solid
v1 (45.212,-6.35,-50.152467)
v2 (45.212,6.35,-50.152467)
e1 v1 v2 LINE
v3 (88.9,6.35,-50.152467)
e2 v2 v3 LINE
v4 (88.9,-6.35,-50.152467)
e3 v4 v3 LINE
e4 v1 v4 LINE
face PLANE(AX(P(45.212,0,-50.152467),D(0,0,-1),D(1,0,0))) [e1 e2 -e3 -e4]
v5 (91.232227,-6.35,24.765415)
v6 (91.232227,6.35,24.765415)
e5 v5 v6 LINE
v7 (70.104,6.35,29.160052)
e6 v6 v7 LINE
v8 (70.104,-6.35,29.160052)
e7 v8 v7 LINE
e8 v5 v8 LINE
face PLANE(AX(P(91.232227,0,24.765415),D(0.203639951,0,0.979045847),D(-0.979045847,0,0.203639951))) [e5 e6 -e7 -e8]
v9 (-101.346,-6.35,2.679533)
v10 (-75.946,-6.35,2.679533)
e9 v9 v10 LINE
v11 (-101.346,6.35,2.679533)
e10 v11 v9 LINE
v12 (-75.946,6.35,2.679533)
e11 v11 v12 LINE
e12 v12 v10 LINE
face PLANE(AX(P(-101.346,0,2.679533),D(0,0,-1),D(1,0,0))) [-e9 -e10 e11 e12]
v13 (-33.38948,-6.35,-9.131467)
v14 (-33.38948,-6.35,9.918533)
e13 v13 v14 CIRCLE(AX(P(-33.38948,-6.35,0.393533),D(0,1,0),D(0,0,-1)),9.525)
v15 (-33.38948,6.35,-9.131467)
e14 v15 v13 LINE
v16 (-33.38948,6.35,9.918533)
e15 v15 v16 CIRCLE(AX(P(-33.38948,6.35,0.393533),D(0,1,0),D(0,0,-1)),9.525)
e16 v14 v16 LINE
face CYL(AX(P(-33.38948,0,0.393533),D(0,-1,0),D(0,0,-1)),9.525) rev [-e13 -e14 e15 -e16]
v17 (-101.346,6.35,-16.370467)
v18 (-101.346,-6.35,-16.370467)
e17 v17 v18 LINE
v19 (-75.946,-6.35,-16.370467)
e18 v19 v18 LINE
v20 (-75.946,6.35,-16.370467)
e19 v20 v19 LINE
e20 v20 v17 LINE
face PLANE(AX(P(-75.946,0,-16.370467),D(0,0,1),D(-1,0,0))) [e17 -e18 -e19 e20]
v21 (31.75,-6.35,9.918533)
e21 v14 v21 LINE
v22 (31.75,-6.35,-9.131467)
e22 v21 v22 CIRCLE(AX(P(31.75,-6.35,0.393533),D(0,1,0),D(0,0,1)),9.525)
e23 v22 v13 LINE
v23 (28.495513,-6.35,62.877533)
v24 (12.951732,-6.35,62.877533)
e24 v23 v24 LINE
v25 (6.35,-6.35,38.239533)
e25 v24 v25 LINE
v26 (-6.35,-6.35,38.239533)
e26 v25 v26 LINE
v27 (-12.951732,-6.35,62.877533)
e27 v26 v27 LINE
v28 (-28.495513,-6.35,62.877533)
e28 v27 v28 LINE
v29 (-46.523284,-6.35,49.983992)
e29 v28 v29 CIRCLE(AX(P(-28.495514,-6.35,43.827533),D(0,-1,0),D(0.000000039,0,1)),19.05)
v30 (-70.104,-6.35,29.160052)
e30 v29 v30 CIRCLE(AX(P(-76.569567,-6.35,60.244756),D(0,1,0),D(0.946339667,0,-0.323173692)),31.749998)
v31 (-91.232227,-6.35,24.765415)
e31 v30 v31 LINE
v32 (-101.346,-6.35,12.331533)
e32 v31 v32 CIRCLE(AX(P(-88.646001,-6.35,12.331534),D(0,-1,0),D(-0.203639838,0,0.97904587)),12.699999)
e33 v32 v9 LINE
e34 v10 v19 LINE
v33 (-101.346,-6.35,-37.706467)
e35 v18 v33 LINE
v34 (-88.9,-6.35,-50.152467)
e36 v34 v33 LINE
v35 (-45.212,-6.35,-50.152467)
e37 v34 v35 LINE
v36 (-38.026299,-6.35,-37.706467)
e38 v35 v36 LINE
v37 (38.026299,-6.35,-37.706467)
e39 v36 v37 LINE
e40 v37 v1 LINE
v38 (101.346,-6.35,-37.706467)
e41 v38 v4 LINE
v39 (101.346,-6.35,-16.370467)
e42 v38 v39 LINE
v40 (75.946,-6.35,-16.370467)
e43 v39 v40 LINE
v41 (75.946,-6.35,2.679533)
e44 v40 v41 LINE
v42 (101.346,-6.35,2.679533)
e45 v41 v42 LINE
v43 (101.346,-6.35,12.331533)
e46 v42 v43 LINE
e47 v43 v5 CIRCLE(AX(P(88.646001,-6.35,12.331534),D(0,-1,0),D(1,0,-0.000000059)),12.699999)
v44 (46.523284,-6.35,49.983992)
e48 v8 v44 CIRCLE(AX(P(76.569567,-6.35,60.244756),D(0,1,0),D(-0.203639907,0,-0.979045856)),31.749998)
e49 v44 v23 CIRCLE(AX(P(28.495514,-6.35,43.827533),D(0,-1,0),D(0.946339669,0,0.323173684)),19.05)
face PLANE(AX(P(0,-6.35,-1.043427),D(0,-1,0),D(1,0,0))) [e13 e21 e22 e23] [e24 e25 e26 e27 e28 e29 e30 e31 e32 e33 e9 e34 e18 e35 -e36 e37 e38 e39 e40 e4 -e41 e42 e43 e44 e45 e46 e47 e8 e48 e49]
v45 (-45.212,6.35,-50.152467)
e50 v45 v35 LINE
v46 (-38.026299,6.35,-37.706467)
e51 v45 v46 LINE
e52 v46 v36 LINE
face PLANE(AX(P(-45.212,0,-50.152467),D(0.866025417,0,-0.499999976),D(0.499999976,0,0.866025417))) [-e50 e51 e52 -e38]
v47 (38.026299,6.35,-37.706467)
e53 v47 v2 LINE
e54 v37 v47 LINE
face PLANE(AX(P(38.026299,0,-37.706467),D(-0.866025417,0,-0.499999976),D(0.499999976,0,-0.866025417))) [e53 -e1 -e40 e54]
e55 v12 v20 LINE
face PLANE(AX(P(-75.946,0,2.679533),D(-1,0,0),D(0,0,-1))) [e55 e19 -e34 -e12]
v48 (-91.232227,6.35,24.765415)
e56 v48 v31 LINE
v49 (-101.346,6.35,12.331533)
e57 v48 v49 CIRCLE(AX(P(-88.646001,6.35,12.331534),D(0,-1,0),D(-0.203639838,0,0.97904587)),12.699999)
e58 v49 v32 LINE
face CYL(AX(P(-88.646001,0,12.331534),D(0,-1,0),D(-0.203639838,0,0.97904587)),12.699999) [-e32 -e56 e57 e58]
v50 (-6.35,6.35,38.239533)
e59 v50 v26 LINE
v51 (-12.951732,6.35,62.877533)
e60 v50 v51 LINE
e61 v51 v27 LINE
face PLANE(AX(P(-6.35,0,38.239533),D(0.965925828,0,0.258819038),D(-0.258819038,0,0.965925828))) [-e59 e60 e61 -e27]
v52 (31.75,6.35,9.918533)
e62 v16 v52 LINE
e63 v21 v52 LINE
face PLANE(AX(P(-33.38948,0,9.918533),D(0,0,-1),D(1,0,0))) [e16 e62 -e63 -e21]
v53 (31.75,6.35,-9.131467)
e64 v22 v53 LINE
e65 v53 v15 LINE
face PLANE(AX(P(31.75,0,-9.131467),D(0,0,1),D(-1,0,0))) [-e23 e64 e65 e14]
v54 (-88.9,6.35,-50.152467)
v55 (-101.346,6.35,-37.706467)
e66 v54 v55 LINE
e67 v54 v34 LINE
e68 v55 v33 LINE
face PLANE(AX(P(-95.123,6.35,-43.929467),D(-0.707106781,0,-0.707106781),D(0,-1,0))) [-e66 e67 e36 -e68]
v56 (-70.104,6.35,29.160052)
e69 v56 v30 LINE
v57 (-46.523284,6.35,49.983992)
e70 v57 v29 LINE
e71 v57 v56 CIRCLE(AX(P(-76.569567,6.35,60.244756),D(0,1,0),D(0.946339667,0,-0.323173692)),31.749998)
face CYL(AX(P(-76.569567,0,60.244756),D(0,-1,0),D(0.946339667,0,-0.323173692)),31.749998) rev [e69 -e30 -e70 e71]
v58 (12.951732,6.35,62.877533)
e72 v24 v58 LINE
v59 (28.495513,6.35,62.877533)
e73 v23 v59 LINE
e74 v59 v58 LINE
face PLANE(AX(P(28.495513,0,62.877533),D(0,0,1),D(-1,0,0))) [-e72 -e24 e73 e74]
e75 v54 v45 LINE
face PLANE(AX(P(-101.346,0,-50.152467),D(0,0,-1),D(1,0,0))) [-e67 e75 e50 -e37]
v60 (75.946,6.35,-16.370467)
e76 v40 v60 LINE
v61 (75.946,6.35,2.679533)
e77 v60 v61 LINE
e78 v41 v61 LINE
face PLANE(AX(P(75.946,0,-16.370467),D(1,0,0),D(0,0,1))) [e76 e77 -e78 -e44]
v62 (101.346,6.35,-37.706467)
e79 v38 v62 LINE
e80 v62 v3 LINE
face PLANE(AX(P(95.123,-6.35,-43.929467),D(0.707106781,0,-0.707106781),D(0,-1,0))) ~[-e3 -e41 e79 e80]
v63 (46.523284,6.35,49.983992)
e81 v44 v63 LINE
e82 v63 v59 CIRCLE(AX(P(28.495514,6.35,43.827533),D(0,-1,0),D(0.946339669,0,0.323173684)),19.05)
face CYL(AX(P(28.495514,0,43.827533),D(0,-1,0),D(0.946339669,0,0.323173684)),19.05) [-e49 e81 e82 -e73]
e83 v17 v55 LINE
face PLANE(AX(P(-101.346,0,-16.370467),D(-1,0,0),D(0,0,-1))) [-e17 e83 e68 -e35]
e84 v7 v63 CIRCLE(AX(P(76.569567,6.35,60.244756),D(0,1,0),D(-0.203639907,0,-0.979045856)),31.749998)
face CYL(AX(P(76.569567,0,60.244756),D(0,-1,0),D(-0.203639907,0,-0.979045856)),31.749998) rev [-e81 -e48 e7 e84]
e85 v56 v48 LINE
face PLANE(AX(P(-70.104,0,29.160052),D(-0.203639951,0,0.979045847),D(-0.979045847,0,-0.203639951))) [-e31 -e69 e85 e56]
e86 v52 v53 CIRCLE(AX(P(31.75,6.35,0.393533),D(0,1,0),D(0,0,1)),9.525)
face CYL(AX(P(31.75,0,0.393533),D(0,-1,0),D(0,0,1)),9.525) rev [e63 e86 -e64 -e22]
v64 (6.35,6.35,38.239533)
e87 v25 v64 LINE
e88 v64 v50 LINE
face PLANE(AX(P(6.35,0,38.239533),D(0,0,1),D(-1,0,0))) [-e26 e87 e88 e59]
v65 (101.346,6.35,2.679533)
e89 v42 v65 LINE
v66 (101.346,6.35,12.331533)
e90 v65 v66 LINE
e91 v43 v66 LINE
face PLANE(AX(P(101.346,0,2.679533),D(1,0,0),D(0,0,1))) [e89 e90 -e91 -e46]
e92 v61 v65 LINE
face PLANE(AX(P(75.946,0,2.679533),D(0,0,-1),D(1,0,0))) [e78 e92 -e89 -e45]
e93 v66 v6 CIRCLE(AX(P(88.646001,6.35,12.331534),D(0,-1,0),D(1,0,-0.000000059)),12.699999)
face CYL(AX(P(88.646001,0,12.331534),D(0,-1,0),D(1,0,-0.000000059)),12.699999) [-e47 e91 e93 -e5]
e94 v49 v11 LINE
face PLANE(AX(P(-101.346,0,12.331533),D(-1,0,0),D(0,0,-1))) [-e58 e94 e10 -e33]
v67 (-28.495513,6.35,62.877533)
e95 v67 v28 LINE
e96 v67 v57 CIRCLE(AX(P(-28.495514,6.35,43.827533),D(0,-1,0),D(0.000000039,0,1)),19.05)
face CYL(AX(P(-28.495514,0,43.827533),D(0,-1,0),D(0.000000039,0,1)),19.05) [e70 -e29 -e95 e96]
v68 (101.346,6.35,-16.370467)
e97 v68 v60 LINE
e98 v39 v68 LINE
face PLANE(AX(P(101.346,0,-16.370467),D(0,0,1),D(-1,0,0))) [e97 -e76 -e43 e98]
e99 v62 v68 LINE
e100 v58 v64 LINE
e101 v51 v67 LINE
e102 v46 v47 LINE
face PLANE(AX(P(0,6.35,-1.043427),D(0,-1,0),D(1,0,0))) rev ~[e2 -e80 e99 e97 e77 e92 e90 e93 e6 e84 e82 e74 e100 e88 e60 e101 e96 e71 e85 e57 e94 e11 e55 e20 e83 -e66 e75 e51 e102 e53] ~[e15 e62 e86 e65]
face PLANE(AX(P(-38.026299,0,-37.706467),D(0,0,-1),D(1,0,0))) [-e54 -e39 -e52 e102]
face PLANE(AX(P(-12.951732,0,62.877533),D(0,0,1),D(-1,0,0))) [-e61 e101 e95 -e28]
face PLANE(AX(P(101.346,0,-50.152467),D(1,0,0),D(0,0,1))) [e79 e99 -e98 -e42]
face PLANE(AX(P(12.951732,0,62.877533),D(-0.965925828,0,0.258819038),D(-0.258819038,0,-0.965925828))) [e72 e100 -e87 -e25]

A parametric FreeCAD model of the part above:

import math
import FreeCAD as App
import Part
import Sketcher
from FreeCAD import Vector
Q = App.Units.Quantity


def edges_at(feature, points):
    """Names of the edges that pass closest to the given points."""
    edges = feature.Shape.Edges
    near = lambda p: min(range(len(edges)), key=lambda i: edges[i].distToShape(Part.Vertex(*p))[0])
    return sorted({f"Edge{near(p) + 1}" for p in points})

doc = App.newDocument("Part")
body = doc.addObject("PartDesign::Body", "Body")

sketch1 = doc.addObject("Sketcher::SketchObject", "Sketch")
body.addObject(sketch1)
sketch1.AttachmentSupport = (doc.XZ_Plane, [""])
sketch1.MapMode = "FlatFace"
sketch1.addGeometry(Part.LineSegment(Vector(6, 38, 0), Vector(-6, 38, 0)), False)
sketch1.addGeometry(Part.LineSegment(Vector(-6, 38, 0), Vector(-13, 63, 0)), False)
sketch1.addGeometry(Part.LineSegment(Vector(-13, 63, 0), Vector(-28, 63, 0)), False)
sketch1.addGeometry(Part.ArcOfCircle(Part.Circle(Vector(-28, 44, 0), Vector(0, 0, 1), 19), math.radians(90), math.radians(161)), False)
sketch1.addGeometry(Part.ArcOfCircle(Part.Circle(Vector(-77, 60, 0), Vector(0, 0, 1), 32), math.radians(-78), math.radians(-19)), False)
sketch1.addGeometry(Part.LineSegment(Vector(-70, 29, 0), Vector(-91, 25, 0)), False)
sketch1.addGeometry(Part.ArcOfCircle(Part.Circle(Vector(-89, 12, 0), Vector(0, 0, 1), 13), math.radians(102), math.radians(180)), False)
sketch1.addGeometry(Part.LineSegment(Vector(-101, 12, 0), Vector(-101, 3, 0)), False)
sketch1.addGeometry(Part.LineSegment(Vector(-101, 3, 0), Vector(-76, 3, 0)), False)
sketch1.addGeometry(Part.LineSegment(Vector(-76, 3, 0), Vector(-76, -16, 0)), False)
sketch1.addGeometry(Part.LineSegment(Vector(-76, -16, 0), Vector(-101, -16, 0)), False)
sketch1.addGeometry(Part.LineSegment(Vector(-101, -16, 0), Vector(-101, -50, 0)), False)
sketch1.addGeometry(Part.LineSegment(Vector(-101, -50, 0), Vector(-45, -50, 0)), False)
sketch1.addGeometry(Part.LineSegment(Vector(-45, -50, 0), Vector(-38, -38, 0)), False)
sketch1.addGeometry(Part.LineSegment(Vector(-38, -38, 0), Vector(38, -38, 0)), False)
sketch1.addGeometry(Part.LineSegment(Vector(38, -38, 0), Vector(45, -50, 0)), False)
sketch1.addGeometry(Part.LineSegment(Vector(45, -50, 0), Vector(101, -50, 0)), False)
sketch1.addGeometry(Part.LineSegment(Vector(101, -50, 0), Vector(101, -16, 0)), False)
sketch1.addGeometry(Part.LineSegment(Vector(101, -16, 0), Vector(76, -16, 0)), False)
sketch1.addGeometry(Part.LineSegment(Vector(76, -16, 0), Vector(76, 3, 0)), False)
sketch1.addGeometry(Part.LineSegment(Vector(76, 3, 0), Vector(101, 3, 0)), False)
sketch1.addGeometry(Part.LineSegment(Vector(101, 3, 0), Vector(101, 12, 0)), False)
sketch1.addGeometry(Part.ArcOfCircle(Part.Circle(Vector(89, 12, 0), Vector(0, 0, 1), 13), math.radians(0), math.radians(78)), False)
sketch1.addGeometry(Part.LineSegment(Vector(91, 25, 0), Vector(70, 29, 0)), False)
sketch1.addGeometry(Part.ArcOfCircle(Part.Circle(Vector(77, 60, 0), Vector(0, 0, 1), 32), math.radians(-161), math.radians(-102)), False)
sketch1.addGeometry(Part.ArcOfCircle(Part.Circle(Vector(28, 44, 0), Vector(0, 0, 1), 19), math.radians(19), math.radians(90)), False)
sketch1.addGeometry(Part.LineSegment(Vector(28, 63, 0), Vector(13, 63, 0)), False)
sketch1.addGeometry(Part.LineSegment(Vector(13, 63, 0), Vector(6, 38, 0)), False)
sketch1.addGeometry(Part.LineSegment(Vector(32, -9, 0), Vector(-33, -9, 0)), False)
sketch1.addGeometry(Part.ArcOfCircle(Part.Circle(Vector(-33, 0, 0), Vector(0, 0, 1), 10), math.radians(90), math.radians(270)), False)
sketch1.addGeometry(Part.LineSegment(Vector(-33, 10, 0), Vector(32, 10, 0)), False)
sketch1.addGeometry(Part.ArcOfCircle(Part.Circle(Vector(32, 0, 0), Vector(0, 0, 1), 10), math.radians(-90), math.radians(90)), False)
sketch1.addConstraint(Sketcher.Constraint("Coincident", 0, 2, 1, 1))
sketch1.addConstraint(Sketcher.Constraint("Coincident", 1, 2, 2, 1))
sketch1.addConstraint(Sketcher.Constraint("Tangent", 2, 2, 3, 1))
sketch1.addConstraint(Sketcher.Constraint("Tangent", 3, 2, 4, 2))
sketch1.addConstraint(Sketcher.Constraint("Tangent", 4, 1, 5, 1))
sketch1.addConstraint(Sketcher.Constraint("Tangent", 5, 2, 6, 1))
sketch1.addConstraint(Sketcher.Constraint("Tangent", 6, 2, 7, 1))
sketch1.addConstraint(Sketcher.Constraint("Coincident", 7, 2, 8, 1))
sketch1.addConstraint(Sketcher.Constraint("Coincident", 8, 2, 9, 1))
sketch1.addConstraint(Sketcher.Constraint("Coincident", 9, 2, 10, 1))
sketch1.addConstraint(Sketcher.Constraint("Coincident", 10, 2, 11, 1))
sketch1.addConstraint(Sketcher.Constraint("Coincident", 11, 2, 12, 1))
sketch1.addConstraint(Sketcher.Constraint("Coincident", 12, 2, 13, 1))
sketch1.addConstraint(Sketcher.Constraint("Coincident", 13, 2, 14, 1))
sketch1.addConstraint(Sketcher.Constraint("Coincident", 14, 2, 15, 1))
sketch1.addConstraint(Sketcher.Constraint("Coincident", 15, 2, 16, 1))
sketch1.addConstraint(Sketcher.Constraint("Coincident", 16, 2, 17, 1))
sketch1.addConstraint(Sketcher.Constraint("Coincident", 17, 2, 18, 1))
sketch1.addConstraint(Sketcher.Constraint("Coincident", 18, 2, 19, 1))
sketch1.addConstraint(Sketcher.Constraint("Coincident", 19, 2, 20, 1))
sketch1.addConstraint(Sketcher.Constraint("Coincident", 20, 2, 21, 1))
sketch1.addConstraint(Sketcher.Constraint("Tangent", 21, 2, 22, 1))
sketch1.addConstraint(Sketcher.Constraint("Tangent", 22, 2, 23, 1))
sketch1.addConstraint(Sketcher.Constraint("Tangent", 23, 2, 24, 2))
sketch1.addConstraint(Sketcher.Constraint("Tangent", 24, 1, 25, 1))
sketch1.addConstraint(Sketcher.Constraint("Tangent", 25, 2, 26, 1))
sketch1.addConstraint(Sketcher.Constraint("Coincident", 26, 2, 27, 1))
sketch1.addConstraint(Sketcher.Constraint("Coincident", 27, 2, 0, 1))
sketch1.addConstraint(Sketcher.Constraint("Tangent", 28, 2, 29, 2))
sketch1.addConstraint(Sketcher.Constraint("Tangent", 29, 1, 30, 1))
sketch1.addConstraint(Sketcher.Constraint("Tangent", 30, 2, 31, 2))
sketch1.addConstraint(Sketcher.Constraint("Tangent", 31, 1, 28, 1))
sketch1.addConstraint(Sketcher.Constraint("Horizontal", 0))
sketch1.addConstraint(Sketcher.Constraint("Horizontal", 2))
sketch1.addConstraint(Sketcher.Constraint("Vertical", 7))
sketch1.addConstraint(Sketcher.Constraint("Horizontal", 8))
sketch1.addConstraint(Sketcher.Constraint("Vertical", 9))
sketch1.addConstraint(Sketcher.Constraint("Horizontal", 10))
sketch1.addConstraint(Sketcher.Constraint("Vertical", 11))
sketch1.addConstraint(Sketcher.Constraint("Horizontal", 12))
sketch1.addConstraint(Sketcher.Constraint("Horizontal", 14))
sketch1.addConstraint(Sketcher.Constraint("Horizontal", 16))
sketch1.addConstraint(Sketcher.Constraint("Vertical", 17))
sketch1.addConstraint(Sketcher.Constraint("Horizontal", 18))
sketch1.addConstraint(Sketcher.Constraint("Vertical", 19))
sketch1.addConstraint(Sketcher.Constraint("Horizontal", 20))
sketch1.addConstraint(Sketcher.Constraint("Vertical", 21))
sketch1.addConstraint(Sketcher.Constraint("Horizontal", 26))
sketch1.addConstraint(Sketcher.Constraint("Horizontal", 28))
sketch1.addConstraint(Sketcher.Constraint("Horizontal", 30))
sketch1.addConstraint(Sketcher.Constraint("Equal", 6, 22))
sketch1.addConstraint(Sketcher.Constraint("Equal", 4, 24))
sketch1.addConstraint(Sketcher.Constraint("Equal", 3, 25))
sketch1.addConstraint(Sketcher.Constraint("Symmetric", 6, 3, 22, 3, -2))
sketch1.addConstraint(Sketcher.Constraint("Symmetric", 4, 3, 24, 3, -2))
sketch1.addConstraint(Sketcher.Constraint("Symmetric", 12, 2, 15, 2, -2))
sketch1.addConstraint(Sketcher.Constraint("Symmetric", 10, 2, 17, 2, -2))
sketch1.addConstraint(Sketcher.Constraint("Symmetric", 8, 2, 19, 2, -2))
sketch1.addConstraint(Sketcher.Constraint("Symmetric", 1, 2, 26, 2, -2))
sketch1.addConstraint(Sketcher.Constraint("Vertical", 7, 2, 10, 2))
sketch1.addConstraint(Sketcher.Constraint("Equal", 13, 15))
sketch1.addConstraint(Sketcher.Constraint("Equal", 1, 27))
sketch1.addConstraint(Sketcher.Constraint("Radius", 6, Q("0.4999999 in")))
sketch1.addConstraint(Sketcher.Constraint("DistanceX", 8, 1, 8, 2, Q("1 in")))
sketch1.addConstraint(Sketcher.Constraint("Radius", 3, Q("0.75 in")))
sketch1.addConstraint(Sketcher.Constraint("Radius", 4, Q("1.2499999 in")))
sketch1.addConstraint(Sketcher.Constraint("DistanceX", 0, 2, 0, 1, Q("0.5 in")))
sketch1.addConstraint(Sketcher.Constraint("Angle", 1, Q("105 deg")))
sketch1.addConstraint(Sketcher.Constraint("Angle", 13, Q("60.000002 deg")))
sketch1.addConstraint(Sketcher.Constraint("Radius", 29, Q("0.375 in")))
sketch1.addConstraint(Sketcher.Constraint("DistanceX", 27, 2, 30, 2, Q("1 in")))
sketch1.addConstraint(Sketcher.Constraint("DistanceX", 12, 1, 12, 2, Q("2.21 in")))
sketch1.addConstraint(Sketcher.Constraint("DistanceY", 7, 2, 7, 1, Q("0.38 in")))
sketch1.addConstraint(Sketcher.Constraint("DistanceY", 9, 2, 9, 1, Q("0.75 in")))
sketch1.addConstraint(Sketcher.Constraint("DistanceY", 11, 2, 11, 1, Q("1.33 in")))
sketch1.addConstraint(Sketcher.Constraint("DistanceY", 13, 2, 29, 3, Q("1.5 in")))
sketch1.addConstraint(Sketcher.Constraint("DistanceX", 6, 3, -1, 1, Q("3.4900001 in")))
sketch1.addConstraint(Sketcher.Constraint("DistanceX", 4, 1, -1, 1, Q("2.76 in")))
sketch1.addConstraint(Sketcher.Constraint("DistanceY", 6, 3, 3, 3, Q("1.24 in")))
sketch1.addConstraint(Sketcher.Constraint("DistanceY", 29, 3, 3, 3, Q("1.71 in")))
sketch1.addConstraint(Sketcher.Constraint("DistanceY", 0, 2, 3, 3, Q("0.22 in")))
sketch1.addConstraint(Sketcher.Constraint("DistanceX", 2, 2, 2, 1, 15.543781))
sketch1.addConstraint(Sketcher.Constraint("DistanceX", 28, 2, 28, 1, 65.13948))
sketch1.addConstraint(Sketcher.Constraint("DistanceY", -1, 1, 3, 2, 49.983992))
pad1 = doc.addObject("PartDesign::Pad", "Pad")
body.addObject(pad1)
pad1.Profile = sketch1
pad1.Length = Q("0.5 in")
pad1.Midplane = True
doc.recompute()

chamfer = doc.addObject("PartDesign::Chamfer", "Chamfer")
body.addObject(chamfer)
chamfer.Base = (pad1, edges_at(pad1, [(-101.346, 0, -50.152), (101.346, 0, -50.152)]))
chamfer.Size = Q("0.49 in")

doc.recompute()
